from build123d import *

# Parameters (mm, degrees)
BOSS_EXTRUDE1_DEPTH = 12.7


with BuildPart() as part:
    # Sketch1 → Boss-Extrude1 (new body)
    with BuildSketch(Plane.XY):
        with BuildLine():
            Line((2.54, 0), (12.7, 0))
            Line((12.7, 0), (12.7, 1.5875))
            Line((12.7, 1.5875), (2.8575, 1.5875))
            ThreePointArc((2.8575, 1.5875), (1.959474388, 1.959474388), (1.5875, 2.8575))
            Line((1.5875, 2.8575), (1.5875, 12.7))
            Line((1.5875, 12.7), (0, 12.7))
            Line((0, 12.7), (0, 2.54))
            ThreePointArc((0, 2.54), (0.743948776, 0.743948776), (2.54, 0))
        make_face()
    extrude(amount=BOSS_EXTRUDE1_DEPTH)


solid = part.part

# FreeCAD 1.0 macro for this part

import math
import FreeCAD as App
import Part
import Sketcher
from FreeCAD import Vector
Q = App.Units.Quantity

doc = App.newDocument("Part")
body = doc.addObject("PartDesign::Body", "Body")

sketch1 = doc.addObject("Sketcher::SketchObject", "Sketch")
body.addObject(sketch1)
sketch1.AttachmentSupport = (doc.XY_Plane, [""])
sketch1.MapMode = "FlatFace"
sketch1.addGeometry([
    Part.LineSegment(Vector(2.5, 0, 0), Vector(12.7, 0, 0)),
    Part.LineSegment(Vector(12.7, 0, 0), Vector(12.7, 1.6, 0)),
    Part.LineSegment(Vector(12.7, 1.6, 0), Vector(2.9, 1.6, 0)),
    Part.ArcOfCircle(Part.Circle(Vector(2.9, 2.9, 0), Vector(0, 0, 1), 1.3), math.radians(180), math.radians(270)),
    Part.LineSegment(Vector(1.6, 2.9, 0), Vector(1.6, 12.7, 0)),
    Part.LineSegment(Vector(1.6, 12.7, 0), Vector(0, 12.7, 0)),
    Part.LineSegment(Vector(0, 12.7, 0), Vector(0, 2.5, 0)),
    Part.ArcOfCircle(Part.Circle(Vector(2.5, 2.5, 0), Vector(0, 0, 1), 2.5), math.radians(-180), math.radians(-90)),
], False)
sketch1.addConstraint([
    Sketcher.Constraint("Coincident", 0, 2, 1, 1),
    Sketcher.Constraint("Coincident", 1, 2, 2, 1),
    Sketcher.Constraint("Tangent", 2, 2, 3, 2),
    Sketcher.Constraint("Tangent", 3, 1, 4, 1),
    Sketcher.Constraint("Coincident", 4, 2, 5, 1),
    Sketcher.Constraint("Coincident", 5, 2, 6, 1),
    Sketcher.Constraint("Tangent", 6, 2, 7, 1),
    Sketcher.Constraint("Tangent", 7, 2, 0, 1),
    Sketcher.Constraint("Horizontal", 0),
    Sketcher.Constraint("Vertical", 1),
    Sketcher.Constraint("Horizontal", 2),
    Sketcher.Constraint("Vertical", 4),
    Sketcher.Constraint("Horizontal", 5),
    Sketcher.Constraint("Vertical", 6),
    Sketcher.Constraint("PointOnObject", 0, 2, -1),
    Sketcher.Constraint("PointOnObject", 5, 2, -2),
    Sketcher.Constraint("Equal", 5, 1),
    Sketcher.Constraint("Equal", 2, 4),
    Sketcher.Constraint("Radius", 7, Q("0.1 in")),
    Sketcher.Constraint("Radius", 3, Q("0.05 in")),
    Sketcher.Constraint("DistanceX", 0, 1, 0, 2, Q("0.4 in")),
    Sketcher.Constraint("DistanceX", 5, 2, 5, 1, Q("0.0625 in")),
])
pad1 = doc.addObject("PartDesign::Pad", "Pad")
body.addObject(pad1)
pad1.Profile = sketch1
pad1.Length = Q("0.5 in")

doc.recompute()
